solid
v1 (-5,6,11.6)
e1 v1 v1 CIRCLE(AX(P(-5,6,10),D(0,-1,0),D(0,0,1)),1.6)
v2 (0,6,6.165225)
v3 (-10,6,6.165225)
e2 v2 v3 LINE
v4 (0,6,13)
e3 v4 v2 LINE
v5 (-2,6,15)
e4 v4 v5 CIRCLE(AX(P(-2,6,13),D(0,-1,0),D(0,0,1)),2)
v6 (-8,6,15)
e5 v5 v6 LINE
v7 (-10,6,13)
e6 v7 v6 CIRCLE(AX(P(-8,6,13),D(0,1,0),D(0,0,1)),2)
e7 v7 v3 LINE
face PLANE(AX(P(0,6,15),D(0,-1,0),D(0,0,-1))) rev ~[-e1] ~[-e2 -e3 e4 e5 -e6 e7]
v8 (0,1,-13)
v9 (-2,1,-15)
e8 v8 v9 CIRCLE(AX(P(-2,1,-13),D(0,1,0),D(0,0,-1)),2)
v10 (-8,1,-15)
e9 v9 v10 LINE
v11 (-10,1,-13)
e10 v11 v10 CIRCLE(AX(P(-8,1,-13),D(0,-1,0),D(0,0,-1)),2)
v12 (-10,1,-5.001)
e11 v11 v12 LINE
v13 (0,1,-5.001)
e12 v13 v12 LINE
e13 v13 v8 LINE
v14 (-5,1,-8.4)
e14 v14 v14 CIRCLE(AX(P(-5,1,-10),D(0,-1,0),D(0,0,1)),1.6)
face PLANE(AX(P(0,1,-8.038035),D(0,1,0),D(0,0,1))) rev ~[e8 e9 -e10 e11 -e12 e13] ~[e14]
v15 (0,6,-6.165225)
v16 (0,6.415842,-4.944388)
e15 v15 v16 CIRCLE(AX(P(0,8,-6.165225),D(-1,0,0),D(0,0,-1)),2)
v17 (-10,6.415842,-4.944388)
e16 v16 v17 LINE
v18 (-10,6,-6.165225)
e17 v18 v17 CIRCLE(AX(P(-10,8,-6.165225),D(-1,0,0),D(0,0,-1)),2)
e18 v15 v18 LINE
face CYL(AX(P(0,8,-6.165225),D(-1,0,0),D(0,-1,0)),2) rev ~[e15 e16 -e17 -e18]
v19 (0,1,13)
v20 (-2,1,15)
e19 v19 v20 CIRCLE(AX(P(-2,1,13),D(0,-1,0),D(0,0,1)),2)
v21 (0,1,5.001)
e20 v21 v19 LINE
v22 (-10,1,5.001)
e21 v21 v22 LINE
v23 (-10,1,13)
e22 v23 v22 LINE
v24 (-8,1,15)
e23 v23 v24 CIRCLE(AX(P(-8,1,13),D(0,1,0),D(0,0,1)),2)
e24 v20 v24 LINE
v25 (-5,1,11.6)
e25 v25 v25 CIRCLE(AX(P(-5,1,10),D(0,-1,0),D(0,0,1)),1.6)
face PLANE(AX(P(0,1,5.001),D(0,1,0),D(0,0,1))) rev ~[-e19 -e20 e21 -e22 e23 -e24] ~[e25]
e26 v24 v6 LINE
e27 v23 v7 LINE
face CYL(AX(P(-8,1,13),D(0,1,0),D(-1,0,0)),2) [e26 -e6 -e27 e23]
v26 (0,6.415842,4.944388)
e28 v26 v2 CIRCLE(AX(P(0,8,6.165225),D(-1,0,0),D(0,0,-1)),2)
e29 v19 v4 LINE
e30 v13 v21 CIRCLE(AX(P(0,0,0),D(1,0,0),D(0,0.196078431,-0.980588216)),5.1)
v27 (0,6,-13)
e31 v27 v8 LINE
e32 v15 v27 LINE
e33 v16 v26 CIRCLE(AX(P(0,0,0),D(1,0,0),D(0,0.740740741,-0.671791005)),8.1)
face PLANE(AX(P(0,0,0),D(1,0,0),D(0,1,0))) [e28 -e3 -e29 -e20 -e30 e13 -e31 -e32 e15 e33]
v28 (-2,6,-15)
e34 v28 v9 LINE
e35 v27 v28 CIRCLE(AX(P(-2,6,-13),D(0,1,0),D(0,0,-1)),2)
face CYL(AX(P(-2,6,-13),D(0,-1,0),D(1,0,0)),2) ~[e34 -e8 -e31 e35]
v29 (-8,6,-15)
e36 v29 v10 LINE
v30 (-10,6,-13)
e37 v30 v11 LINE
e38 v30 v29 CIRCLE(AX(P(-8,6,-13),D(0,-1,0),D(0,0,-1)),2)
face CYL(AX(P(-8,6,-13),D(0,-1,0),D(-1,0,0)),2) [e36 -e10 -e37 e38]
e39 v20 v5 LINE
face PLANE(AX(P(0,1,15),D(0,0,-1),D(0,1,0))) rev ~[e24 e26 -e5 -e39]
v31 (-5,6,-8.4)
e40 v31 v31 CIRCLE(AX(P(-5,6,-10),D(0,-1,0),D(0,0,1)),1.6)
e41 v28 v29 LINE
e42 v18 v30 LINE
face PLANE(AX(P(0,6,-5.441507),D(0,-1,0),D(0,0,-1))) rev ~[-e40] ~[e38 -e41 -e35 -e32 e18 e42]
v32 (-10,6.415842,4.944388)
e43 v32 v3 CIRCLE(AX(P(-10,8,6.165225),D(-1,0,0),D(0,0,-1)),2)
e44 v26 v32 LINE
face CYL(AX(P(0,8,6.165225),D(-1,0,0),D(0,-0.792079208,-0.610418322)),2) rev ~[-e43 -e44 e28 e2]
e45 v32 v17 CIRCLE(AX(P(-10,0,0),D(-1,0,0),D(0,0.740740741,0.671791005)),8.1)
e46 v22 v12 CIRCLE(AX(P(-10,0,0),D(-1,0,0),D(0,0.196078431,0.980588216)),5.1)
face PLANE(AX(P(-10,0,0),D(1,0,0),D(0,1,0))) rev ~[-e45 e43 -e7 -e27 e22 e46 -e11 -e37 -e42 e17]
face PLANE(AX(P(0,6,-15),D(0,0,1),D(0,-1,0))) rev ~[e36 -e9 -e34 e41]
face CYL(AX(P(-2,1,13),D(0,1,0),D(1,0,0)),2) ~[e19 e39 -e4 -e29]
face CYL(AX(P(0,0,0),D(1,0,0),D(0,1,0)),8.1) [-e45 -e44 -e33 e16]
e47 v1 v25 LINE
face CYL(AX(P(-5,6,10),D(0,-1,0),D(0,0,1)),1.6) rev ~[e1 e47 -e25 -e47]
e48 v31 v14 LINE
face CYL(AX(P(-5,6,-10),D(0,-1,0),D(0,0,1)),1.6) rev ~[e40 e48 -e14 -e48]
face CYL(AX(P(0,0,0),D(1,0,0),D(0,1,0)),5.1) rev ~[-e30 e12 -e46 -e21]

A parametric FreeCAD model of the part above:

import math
import FreeCAD as App
import Part
import Sketcher
from FreeCAD import Vector
Q = App.Units.Quantity


def edges_at(feature, points):
    """Names of the edges that pass closest to the given points."""
    edges = feature.Shape.Edges
    near = lambda p: min(range(len(edges)), key=lambda i: edges[i].distToShape(Part.Vertex(*p))[0])
    return sorted({f"Edge{near(p) + 1}" for p in points})

doc = App.newDocument("Part")
body = doc.addObject("PartDesign::Body", "Body")

# Sketch on YZ plane
sketch1 = body.newObject("Sketcher::SketchObject", "Sketch")
sketch1.AttachmentSupport = (doc.getObject("YZ_Plane"), [""])
sketch1.MapMode = "FlatFace"
sketch1.addGeometry(Part.ArcOfCircle(Part.Circle(Vector(0, 0, 0), Vector(0, 0, 1), 5), math.radians(-79), math.radians(79)), False)
sketch1.addGeometry(Part.LineSegment(Vector(1, -5, 0), Vector(1, -15, 0)), False)
sketch1.addGeometry(Part.LineSegment(Vector(1, -15, 0), Vector(6, -15, 0)), False)
sketch1.addGeometry(Part.LineSegment(Vector(6, -15, 0), Vector(6, -5, 0)), False)
sketch1.addGeometry(Part.ArcOfCircle(Part.Circle(Vector(0, 0, 0), Vector(0, 0, 1), 8), math.radians(-42), math.radians(42)), False)
sketch1.addGeometry(Part.LineSegment(Vector(6, 5, 0), Vector(6, 15, 0)), False)
sketch1.addGeometry(Part.LineSegment(Vector(6, 15, 0), Vector(1, 15, 0)), False)
sketch1.addGeometry(Part.LineSegment(Vector(1, 15, 0), Vector(1, 5, 0)), False)
sketch1.addConstraint(Sketcher.Constraint("Coincident", 0, 1, 1, 1))
sketch1.addConstraint(Sketcher.Constraint("Coincident", 1, 2, 2, 1))
sketch1.addConstraint(Sketcher.Constraint("Coincident", 2, 2, 3, 1))
sketch1.addConstraint(Sketcher.Constraint("Coincident", 3, 2, 4, 1))
sketch1.addConstraint(Sketcher.Constraint("Coincident", 4, 2, 5, 1))
sketch1.addConstraint(Sketcher.Constraint("Coincident", 5, 2, 6, 1))
sketch1.addConstraint(Sketcher.Constraint("Coincident", 6, 2, 7, 1))
sketch1.addConstraint(Sketcher.Constraint("Coincident", 7, 2, 0, 2))
sketch1.addConstraint(Sketcher.Constraint("Vertical", 1))
sketch1.addConstraint(Sketcher.Constraint("Horizontal", 2))
sketch1.addConstraint(Sketcher.Constraint("Vertical", 3))
sketch1.addConstraint(Sketcher.Constraint("Vertical", 5))
sketch1.addConstraint(Sketcher.Constraint("Horizontal", 6))
sketch1.addConstraint(Sketcher.Constraint("Vertical", 7))
sketch1.addConstraint(Sketcher.Constraint("Coincident", 0, 3, -1, 1))
sketch1.addConstraint(Sketcher.Constraint("Coincident", 4, 3, -1, 1))
sketch1.addConstraint(Sketcher.Constraint("Symmetric", 2, 2, 5, 2, -1))
sketch1.addConstraint(Sketcher.Constraint("Vertical", 1, 2, 6, 2))
sketch1.addConstraint(Sketcher.Constraint("Radius", 0, Q("5.1 mm")))
sketch1.addConstraint(Sketcher.Constraint("DistanceX", 2, 1, 2, 2, Q("5 mm")))
sketch1.addConstraint(Sketcher.Constraint("DistanceX", -1, 1, 0, 1, Q("1 mm")))
sketch1.addConstraint(Sketcher.Constraint("DistanceY", 1, 2, -1, 1, Q("15 mm")))
sketch1.addConstraint(Sketcher.Constraint("Radius", 4, Q("8.1 mm")))
pad1 = body.newObject("PartDesign::Pad", "Pad")
pad1.Profile = sketch1
pad1.Length = 10
pad1.Reversed = True

# Sketch on XZ plane
sketch2 = body.newObject("Sketcher::SketchObject", "Sketch001")
sketch2.AttachmentSupport = (doc.getObject("XZ_Plane"), [""])
sketch2.MapMode = "FlatFace"
sketch2.AttachmentOffset = App.Placement(Vector(0, 0, -6), App.Rotation())
sketch2.addGeometry(Part.Circle(Vector(-5, 10, 0), Vector(0, 0, 1), 1.6), False)
sketch2.addGeometry(Part.Circle(Vector(-5, -10, 0), Vector(0, 0, 1), 1.6), False)
sketch2.addConstraint(Sketcher.Constraint("Equal", 0, 1))
sketch2.addConstraint(Sketcher.Constraint("Symmetric", 0, 3, 1, 3, -1))
sketch2.addConstraint(Sketcher.Constraint("Diameter", 0, Q("3.2 mm")))
sketch2.addConstraint(Sketcher.Constraint("DistanceX", 0, 3, -1, 1, Q("5 mm")))
sketch2.addConstraint(Sketcher.Constraint("DistanceY", -1, 1, 0, 3, Q("10 mm")))
doc.recompute()
hole = body.newObject("PartDesign::Hole", "Hole")
hole.Profile = sketch2
hole.ThreadType = "None"
hole.Diameter = 3.2
hole.DepthType = "ThroughAll"
hole.Reversed = True
doc.recompute()

fillet = body.newObject("PartDesign::Fillet", "Fillet")
fillet.Base = (hole, edges_at(hole, [
    (0, 3.5, 15),
    (-10, 3.5, 15),
    (-5, 6, 5.441),
    (-5, 6, -5.441),
    (0, 3.5, -15),
    (-10, 3.5, -15),
]))
fillet.Radius = 2

doc.recompute()
